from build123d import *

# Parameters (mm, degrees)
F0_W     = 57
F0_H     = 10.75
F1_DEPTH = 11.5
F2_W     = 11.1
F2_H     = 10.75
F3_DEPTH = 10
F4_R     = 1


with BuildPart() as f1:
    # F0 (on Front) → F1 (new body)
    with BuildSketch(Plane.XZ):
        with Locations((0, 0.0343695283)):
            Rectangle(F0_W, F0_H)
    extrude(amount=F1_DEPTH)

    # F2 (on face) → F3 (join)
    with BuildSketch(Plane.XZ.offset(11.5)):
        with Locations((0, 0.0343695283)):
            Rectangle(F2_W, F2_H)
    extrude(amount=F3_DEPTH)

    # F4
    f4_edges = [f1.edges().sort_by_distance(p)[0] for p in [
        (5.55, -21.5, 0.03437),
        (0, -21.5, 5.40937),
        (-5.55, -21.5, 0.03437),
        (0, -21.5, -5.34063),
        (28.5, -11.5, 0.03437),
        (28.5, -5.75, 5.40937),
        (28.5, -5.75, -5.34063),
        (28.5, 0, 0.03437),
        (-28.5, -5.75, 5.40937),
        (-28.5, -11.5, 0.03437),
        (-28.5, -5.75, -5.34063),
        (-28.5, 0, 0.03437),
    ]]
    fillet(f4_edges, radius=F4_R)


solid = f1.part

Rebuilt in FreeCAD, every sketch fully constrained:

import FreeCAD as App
import Part
import Sketcher

V = App.Vector
Q = App.Units.Quantity


def edges_at(feature, points):
    """Names of the edges that pass closest to the given points."""
    edges = feature.Shape.Edges
    near = lambda p: min(range(len(edges)), key=lambda i: edges[i].distToShape(Part.Vertex(*p))[0])
    return sorted({f"Edge{near(p) + 1}" for p in points})


def add_polygon(sketch, points):
    """Adds a closed chain of lines whose ends are joined by coincident constraints."""
    first, n = sketch.GeometryCount, len(points)
    for a, b in zip(points, points[1:] + points[:1]):
        sketch.addGeometry(Part.LineSegment(App.Vector(*a, 0), App.Vector(*b, 0)), False)
    for i in range(n):
        sketch.addConstraint(Sketcher.Constraint("Coincident", first + i, 2, first + (i + 1) % n, 1))

doc = App.newDocument("Part")
body = doc.addObject("PartDesign::Body", "Body")

# Sketch on XZ plane
sketch1 = doc.addObject("Sketcher::SketchObject", "Sketch")
body.addObject(sketch1)
sketch1.AttachmentSupport = (doc.XZ_Plane, [""])
sketch1.MapMode = "FlatFace"
add_polygon(sketch1, [(-28, 5), (-28, -5), (28, -5), (28, 5)])  # lines 0-3
sketch1.addConstraint([
    Sketcher.Constraint("Vertical", 0),
    Sketcher.Constraint("Horizontal", 1),
    Sketcher.Constraint("Vertical", 2),
    Sketcher.Constraint("Horizontal", 3),
    Sketcher.Constraint("DistanceX", 1, 1, 1, 2, Q("57 mm")),
    Sketcher.Constraint("DistanceY", 0, 2, 0, 1, Q("10.75 mm")),
    Sketcher.Constraint("DistanceX", 0, 2, -1, 1, Q("28.5 mm")),
    Sketcher.Constraint("DistanceY", 0, 2, -1, 1, Q("5.34063 mm")),
])
pad1 = doc.addObject("PartDesign::Pad", "Pad")
body.addObject(pad1)
pad1.Profile = sketch1
pad1.Length = 11.5

# Sketch on XZ plane
sketch2 = doc.addObject("Sketcher::SketchObject", "Sketch001")
body.addObject(sketch2)
sketch2.AttachmentSupport = (doc.XZ_Plane, [""])
sketch2.MapMode = "FlatFace"
sketch2.AttachmentOffset = App.Placement(V(0, 0, 11.5), App.Rotation())
add_polygon(sketch2, [(-6, 5), (-6, -5), (6, -5), (6, 5)])  # lines 0-3
sketch2.addConstraint([
    Sketcher.Constraint("Vertical", 0),
    Sketcher.Constraint("Horizontal", 1),
    Sketcher.Constraint("Vertical", 2),
    Sketcher.Constraint("Horizontal", 3),
    Sketcher.Constraint("DistanceX", 1, 1, 1, 2, Q("11.1 mm")),
    Sketcher.Constraint("DistanceY", 0, 2, 0, 1, Q("10.75 mm")),
    Sketcher.Constraint("DistanceX", 0, 2, -1, 1, Q("5.55 mm")),
    Sketcher.Constraint("DistanceY", 0, 2, -1, 1, Q("5.34063 mm")),
])
pad2 = doc.addObject("PartDesign::Pad", "Pad001")
body.addObject(pad2)
pad2.Profile = sketch2
pad2.Length = 10
doc.recompute()

fillet = doc.addObject("PartDesign::Fillet", "Fillet")
body.addObject(fillet)
fillet.Base = (pad2, edges_at(pad2, [
    (5.55, -21.5, 0.034),
    (0, -21.5, 5.409),
    (-5.55, -21.5, 0.034),
    (0, -21.5, -5.341),
    (28.5, -11.5, 0.034),
    (28.5, -5.75, 5.409),
    (28.5, -5.75, -5.341),
    (28.5, 0, 0.034),
    (-28.5, -5.75, 5.409),
    (-28.5, -11.5, 0.034),
    (-28.5, -5.75, -5.341),
    (-28.5, 0, 0.034),
]))
fillet.Radius = 1

doc.recompute()
